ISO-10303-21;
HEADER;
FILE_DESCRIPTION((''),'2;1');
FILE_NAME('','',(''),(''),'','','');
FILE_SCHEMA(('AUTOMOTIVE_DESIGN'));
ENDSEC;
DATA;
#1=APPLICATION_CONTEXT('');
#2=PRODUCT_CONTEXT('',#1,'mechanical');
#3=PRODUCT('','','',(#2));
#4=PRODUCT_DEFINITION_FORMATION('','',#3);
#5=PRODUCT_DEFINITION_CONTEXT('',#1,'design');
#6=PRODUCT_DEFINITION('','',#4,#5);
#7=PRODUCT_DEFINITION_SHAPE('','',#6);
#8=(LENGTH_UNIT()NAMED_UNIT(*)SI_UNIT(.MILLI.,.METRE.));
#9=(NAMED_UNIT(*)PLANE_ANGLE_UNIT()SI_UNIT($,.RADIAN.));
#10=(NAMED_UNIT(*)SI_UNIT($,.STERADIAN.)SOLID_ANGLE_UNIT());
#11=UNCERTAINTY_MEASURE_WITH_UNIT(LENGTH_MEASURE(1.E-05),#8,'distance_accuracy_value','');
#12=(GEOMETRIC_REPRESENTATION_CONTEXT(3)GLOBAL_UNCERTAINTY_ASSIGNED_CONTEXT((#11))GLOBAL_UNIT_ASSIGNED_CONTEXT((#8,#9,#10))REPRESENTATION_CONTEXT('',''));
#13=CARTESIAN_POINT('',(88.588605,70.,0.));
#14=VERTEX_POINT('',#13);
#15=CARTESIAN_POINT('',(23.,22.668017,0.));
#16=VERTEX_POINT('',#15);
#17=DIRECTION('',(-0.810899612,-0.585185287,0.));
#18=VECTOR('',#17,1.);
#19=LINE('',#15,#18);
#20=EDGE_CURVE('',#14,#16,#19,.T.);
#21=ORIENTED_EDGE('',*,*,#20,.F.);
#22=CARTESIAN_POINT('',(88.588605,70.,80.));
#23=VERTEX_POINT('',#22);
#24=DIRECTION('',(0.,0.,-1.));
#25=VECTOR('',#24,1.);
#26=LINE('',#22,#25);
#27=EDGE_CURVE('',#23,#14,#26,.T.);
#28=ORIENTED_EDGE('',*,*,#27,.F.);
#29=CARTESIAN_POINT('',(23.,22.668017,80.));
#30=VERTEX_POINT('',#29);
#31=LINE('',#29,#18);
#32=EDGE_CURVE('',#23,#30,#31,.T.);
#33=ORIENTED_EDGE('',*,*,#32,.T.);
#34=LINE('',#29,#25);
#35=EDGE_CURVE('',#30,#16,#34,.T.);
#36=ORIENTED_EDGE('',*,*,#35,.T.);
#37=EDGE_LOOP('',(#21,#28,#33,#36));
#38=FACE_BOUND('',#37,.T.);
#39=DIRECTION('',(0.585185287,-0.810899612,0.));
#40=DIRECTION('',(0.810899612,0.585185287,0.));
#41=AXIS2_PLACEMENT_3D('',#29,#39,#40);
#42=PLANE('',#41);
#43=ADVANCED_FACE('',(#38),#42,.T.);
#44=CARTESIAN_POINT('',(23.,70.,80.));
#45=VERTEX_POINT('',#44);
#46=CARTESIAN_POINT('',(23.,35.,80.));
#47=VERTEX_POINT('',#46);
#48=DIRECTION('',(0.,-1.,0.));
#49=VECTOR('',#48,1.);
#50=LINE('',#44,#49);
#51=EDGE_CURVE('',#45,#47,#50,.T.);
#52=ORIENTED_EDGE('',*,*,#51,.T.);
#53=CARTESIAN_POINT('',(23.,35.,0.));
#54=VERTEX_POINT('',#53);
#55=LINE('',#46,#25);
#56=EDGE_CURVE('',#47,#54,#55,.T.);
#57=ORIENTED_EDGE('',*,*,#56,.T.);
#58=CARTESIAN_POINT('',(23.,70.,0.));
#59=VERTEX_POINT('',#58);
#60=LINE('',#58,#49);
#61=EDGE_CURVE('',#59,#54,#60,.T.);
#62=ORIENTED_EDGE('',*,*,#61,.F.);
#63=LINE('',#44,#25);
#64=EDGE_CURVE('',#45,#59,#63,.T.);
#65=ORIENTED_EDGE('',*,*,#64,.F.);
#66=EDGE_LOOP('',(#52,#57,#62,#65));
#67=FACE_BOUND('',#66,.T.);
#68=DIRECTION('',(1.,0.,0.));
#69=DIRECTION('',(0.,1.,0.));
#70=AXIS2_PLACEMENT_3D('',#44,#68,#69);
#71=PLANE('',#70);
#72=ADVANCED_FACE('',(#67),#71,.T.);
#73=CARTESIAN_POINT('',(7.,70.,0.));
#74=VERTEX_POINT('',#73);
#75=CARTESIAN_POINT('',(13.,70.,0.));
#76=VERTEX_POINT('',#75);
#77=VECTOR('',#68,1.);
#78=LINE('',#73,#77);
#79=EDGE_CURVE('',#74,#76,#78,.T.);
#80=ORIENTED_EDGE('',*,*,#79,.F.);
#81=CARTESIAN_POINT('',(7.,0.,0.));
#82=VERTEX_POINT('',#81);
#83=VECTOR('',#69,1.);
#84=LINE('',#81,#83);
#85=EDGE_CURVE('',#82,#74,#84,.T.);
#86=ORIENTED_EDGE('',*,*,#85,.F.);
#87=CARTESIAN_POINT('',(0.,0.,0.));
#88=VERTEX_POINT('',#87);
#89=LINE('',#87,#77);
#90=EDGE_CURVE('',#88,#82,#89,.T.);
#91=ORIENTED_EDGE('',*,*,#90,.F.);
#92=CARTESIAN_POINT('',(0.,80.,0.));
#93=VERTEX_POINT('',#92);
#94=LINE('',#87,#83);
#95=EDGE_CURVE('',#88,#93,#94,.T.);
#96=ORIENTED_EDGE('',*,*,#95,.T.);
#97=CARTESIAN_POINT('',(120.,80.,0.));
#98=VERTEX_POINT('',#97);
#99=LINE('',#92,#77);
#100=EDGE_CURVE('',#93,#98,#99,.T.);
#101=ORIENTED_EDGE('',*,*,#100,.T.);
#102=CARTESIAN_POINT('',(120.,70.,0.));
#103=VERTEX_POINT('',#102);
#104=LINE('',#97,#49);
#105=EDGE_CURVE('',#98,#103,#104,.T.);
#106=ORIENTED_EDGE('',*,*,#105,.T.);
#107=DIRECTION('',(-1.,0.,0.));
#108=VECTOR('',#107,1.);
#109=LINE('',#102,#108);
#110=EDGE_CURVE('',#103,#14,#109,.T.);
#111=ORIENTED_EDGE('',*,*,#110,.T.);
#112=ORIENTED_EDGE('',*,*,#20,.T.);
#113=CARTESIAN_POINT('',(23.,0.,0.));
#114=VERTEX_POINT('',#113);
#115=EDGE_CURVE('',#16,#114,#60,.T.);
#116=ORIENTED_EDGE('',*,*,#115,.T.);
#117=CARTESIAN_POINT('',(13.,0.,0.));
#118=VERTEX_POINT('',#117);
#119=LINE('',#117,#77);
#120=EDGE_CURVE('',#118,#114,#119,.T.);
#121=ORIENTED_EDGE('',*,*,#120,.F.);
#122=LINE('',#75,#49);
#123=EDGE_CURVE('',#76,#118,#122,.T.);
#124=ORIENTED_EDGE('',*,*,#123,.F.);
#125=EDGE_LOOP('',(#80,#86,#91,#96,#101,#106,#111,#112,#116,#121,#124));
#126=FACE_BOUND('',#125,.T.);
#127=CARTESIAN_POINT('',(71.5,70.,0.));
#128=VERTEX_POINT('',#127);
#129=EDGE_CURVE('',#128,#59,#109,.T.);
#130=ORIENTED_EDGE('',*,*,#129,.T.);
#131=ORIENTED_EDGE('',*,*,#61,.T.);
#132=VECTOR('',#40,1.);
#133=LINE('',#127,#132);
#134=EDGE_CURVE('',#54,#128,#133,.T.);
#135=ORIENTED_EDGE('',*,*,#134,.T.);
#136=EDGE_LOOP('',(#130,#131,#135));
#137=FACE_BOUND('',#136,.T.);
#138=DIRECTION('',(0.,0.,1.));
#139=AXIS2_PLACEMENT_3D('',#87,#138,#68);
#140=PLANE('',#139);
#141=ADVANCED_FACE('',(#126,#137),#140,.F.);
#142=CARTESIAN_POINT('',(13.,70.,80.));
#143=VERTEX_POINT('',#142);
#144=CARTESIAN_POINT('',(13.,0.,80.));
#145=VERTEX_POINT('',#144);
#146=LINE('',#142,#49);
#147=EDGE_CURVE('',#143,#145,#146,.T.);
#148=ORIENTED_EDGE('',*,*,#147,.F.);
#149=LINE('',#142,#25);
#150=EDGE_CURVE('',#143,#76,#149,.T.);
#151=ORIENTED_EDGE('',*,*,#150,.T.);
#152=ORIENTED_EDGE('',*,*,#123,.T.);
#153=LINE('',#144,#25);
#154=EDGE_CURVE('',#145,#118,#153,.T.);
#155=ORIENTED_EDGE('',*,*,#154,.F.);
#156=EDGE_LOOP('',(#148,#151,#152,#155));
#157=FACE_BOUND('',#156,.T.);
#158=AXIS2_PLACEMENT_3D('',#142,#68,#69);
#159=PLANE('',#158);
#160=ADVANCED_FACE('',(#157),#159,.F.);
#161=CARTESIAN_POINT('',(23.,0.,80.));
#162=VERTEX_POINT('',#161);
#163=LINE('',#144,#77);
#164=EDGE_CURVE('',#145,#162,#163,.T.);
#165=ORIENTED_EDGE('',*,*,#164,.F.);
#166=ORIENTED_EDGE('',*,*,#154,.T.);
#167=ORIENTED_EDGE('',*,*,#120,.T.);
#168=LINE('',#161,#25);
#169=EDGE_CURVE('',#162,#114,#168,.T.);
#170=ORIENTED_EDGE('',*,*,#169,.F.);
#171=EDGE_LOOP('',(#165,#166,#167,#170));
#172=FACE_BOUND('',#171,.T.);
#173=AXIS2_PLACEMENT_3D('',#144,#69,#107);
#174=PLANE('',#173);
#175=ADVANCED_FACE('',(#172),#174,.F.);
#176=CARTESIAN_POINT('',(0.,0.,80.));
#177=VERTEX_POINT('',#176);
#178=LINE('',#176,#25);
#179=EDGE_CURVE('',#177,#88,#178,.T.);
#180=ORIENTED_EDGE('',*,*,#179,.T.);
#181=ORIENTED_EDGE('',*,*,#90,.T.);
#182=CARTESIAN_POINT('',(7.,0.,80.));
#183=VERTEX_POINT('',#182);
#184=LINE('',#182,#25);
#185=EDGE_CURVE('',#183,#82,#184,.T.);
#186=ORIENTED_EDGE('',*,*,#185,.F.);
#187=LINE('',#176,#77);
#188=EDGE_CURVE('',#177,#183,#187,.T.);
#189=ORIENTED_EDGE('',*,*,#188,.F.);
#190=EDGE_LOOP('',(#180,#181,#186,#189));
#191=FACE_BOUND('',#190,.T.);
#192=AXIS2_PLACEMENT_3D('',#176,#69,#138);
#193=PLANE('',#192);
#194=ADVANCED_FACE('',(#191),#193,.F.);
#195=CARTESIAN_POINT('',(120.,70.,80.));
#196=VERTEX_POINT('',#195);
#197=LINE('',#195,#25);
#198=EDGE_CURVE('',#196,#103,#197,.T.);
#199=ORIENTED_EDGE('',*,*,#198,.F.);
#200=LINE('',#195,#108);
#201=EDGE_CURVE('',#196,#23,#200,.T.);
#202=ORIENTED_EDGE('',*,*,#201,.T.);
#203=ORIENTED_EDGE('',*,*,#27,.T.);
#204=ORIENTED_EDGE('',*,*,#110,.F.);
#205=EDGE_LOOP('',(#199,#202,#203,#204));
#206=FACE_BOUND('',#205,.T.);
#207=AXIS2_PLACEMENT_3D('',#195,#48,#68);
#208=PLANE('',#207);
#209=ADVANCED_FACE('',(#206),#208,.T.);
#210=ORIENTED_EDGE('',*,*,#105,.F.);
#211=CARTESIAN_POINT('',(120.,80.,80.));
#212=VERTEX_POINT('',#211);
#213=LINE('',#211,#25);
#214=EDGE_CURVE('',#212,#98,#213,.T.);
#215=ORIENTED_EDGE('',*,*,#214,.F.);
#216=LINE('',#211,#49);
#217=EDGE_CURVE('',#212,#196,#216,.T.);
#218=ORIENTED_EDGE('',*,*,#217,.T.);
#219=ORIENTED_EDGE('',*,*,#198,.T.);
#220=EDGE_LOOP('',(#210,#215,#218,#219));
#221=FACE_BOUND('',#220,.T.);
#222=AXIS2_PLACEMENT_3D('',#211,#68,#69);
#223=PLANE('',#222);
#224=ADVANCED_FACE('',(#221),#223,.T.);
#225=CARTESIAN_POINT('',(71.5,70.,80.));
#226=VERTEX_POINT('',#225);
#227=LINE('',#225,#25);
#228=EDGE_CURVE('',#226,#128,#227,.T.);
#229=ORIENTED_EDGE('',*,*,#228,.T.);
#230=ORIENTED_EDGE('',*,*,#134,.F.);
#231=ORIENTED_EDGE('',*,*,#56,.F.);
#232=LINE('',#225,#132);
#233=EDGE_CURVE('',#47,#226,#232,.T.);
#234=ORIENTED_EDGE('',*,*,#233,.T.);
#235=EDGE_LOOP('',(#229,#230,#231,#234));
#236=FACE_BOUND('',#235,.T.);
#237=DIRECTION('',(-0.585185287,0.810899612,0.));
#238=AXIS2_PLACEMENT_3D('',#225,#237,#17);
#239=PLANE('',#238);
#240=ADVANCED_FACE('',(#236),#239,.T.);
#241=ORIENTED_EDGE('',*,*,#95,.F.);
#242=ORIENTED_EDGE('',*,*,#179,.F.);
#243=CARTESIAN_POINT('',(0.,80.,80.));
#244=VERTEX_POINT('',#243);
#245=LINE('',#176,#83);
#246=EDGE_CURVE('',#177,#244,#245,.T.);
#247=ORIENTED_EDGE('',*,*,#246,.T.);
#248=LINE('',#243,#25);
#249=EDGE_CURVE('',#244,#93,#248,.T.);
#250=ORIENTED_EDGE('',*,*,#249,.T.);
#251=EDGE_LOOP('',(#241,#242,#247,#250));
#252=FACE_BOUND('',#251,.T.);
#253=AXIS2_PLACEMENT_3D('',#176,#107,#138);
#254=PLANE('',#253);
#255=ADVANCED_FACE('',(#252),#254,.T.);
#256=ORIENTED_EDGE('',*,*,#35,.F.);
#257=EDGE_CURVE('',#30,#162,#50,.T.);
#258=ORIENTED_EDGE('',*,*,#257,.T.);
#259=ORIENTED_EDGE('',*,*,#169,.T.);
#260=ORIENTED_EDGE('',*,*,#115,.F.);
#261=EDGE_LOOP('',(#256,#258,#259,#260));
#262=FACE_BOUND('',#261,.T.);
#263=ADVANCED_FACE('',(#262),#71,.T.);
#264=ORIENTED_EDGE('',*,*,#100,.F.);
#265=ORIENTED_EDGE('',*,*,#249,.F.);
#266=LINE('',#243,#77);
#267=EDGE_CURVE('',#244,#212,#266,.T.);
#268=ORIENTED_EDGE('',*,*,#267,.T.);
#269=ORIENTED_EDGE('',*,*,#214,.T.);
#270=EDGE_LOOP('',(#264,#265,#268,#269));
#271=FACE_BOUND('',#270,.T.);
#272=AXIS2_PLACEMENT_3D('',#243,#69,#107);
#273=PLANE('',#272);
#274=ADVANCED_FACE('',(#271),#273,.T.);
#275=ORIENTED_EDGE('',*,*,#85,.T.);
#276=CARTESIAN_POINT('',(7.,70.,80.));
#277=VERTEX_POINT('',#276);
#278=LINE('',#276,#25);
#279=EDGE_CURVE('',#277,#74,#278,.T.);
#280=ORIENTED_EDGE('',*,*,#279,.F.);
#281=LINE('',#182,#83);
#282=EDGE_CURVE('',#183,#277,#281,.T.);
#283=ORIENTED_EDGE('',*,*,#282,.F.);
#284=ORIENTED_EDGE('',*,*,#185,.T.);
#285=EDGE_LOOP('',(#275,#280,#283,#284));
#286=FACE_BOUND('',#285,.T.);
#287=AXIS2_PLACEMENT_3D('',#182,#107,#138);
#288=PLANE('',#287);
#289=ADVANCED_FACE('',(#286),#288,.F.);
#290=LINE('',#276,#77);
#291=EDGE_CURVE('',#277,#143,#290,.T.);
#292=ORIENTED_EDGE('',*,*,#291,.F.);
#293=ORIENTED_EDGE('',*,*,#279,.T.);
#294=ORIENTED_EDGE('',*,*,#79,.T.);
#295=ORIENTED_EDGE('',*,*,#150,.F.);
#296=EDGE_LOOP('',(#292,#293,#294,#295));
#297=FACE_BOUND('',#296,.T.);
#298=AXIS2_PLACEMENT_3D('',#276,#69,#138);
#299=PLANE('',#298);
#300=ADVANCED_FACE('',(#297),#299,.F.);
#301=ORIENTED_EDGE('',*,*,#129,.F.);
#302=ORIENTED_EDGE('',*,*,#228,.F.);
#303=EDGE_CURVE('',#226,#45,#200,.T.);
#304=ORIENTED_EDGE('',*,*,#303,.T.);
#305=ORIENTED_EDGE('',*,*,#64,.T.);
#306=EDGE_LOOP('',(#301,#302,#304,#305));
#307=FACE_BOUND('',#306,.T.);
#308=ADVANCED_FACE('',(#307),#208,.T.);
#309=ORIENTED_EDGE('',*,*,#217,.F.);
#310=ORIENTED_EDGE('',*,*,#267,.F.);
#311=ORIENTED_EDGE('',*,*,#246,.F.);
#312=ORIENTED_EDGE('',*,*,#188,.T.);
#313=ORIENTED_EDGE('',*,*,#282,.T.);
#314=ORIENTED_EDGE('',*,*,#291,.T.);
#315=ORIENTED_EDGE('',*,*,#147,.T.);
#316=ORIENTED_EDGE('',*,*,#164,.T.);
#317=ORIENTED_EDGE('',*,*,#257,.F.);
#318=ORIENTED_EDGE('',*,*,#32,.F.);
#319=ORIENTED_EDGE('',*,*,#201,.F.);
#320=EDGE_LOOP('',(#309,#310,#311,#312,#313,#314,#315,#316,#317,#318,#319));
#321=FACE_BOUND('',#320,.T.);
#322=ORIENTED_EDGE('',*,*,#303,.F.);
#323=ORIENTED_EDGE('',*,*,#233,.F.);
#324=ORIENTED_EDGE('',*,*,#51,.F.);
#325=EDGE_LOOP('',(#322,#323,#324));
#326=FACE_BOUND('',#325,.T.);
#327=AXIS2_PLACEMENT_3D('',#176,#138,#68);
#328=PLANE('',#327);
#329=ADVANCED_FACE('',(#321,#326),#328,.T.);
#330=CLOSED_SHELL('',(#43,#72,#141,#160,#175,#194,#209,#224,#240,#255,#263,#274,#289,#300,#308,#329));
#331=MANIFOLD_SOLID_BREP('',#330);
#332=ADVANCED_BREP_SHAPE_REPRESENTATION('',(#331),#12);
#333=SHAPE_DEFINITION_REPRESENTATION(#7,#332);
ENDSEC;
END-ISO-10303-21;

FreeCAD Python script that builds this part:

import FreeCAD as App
import Part
import Sketcher

V = App.Vector
Q = App.Units.Quantity


def add_polygon(sketch, points):
    """Adds a closed chain of lines whose ends are joined by coincident constraints."""
    first, n = sketch.GeometryCount, len(points)
    for a, b in zip(points, points[1:] + points[:1]):
        sketch.addGeometry(Part.LineSegment(App.Vector(*a, 0), App.Vector(*b, 0)), False)
    for i in range(n):
        sketch.addConstraint(Sketcher.Constraint("Coincident", first + i, 2, first + (i + 1) % n, 1))

doc = App.newDocument("Part")
body = doc.addObject("PartDesign::Body", "Body")

# Sketch on XY plane
sketch1 = body.newObject("Sketcher::SketchObject", "Sketch")
sketch1.AttachmentSupport = (doc.getObject("XY_Plane"), [""])
sketch1.MapMode = "FlatFace"
add_polygon(sketch1, [(0, 80), (0, 0), (7, 0), (7, 70), (13, 70), (13, 0), (23, 0), (23, 70), (120, 70), (120, 80)])  # lines 0-9
sketch1.addConstraint(Sketcher.Constraint("Vertical", 0))
sketch1.addConstraint(Sketcher.Constraint("Horizontal", 1))
sketch1.addConstraint(Sketcher.Constraint("Vertical", 2))
sketch1.addConstraint(Sketcher.Constraint("Horizontal", 3))
sketch1.addConstraint(Sketcher.Constraint("Vertical", 4))
sketch1.addConstraint(Sketcher.Constraint("Horizontal", 5))
sketch1.addConstraint(Sketcher.Constraint("Vertical", 6))
sketch1.addConstraint(Sketcher.Constraint("Horizontal", 7))
sketch1.addConstraint(Sketcher.Constraint("Vertical", 8))
sketch1.addConstraint(Sketcher.Constraint("Horizontal", 9))
sketch1.addConstraint(Sketcher.Constraint("Coincident", 0, 2, -1, 1))
sketch1.addConstraint(Sketcher.Constraint("PointOnObject", 4, 2, -1))
sketch1.addConstraint(Sketcher.Constraint("Horizontal", 3, 2, 6, 2))
sketch1.addConstraint(Sketcher.Constraint("Equal", 5, 8))
sketch1.addConstraint(Sketcher.Constraint("DistanceX", 1, 1, 1, 2, Q("7 mm")))
sketch1.addConstraint(Sketcher.Constraint("DistanceX", 3, 1, 3, 2, Q("6 mm")))
sketch1.addConstraint(Sketcher.Constraint("DistanceX", 5, 1, 5, 2, Q("10 mm")))
sketch1.addConstraint(Sketcher.Constraint("DistanceX", 7, 1, 7, 2, Q("97 mm")))
sketch1.addConstraint(Sketcher.Constraint("DistanceY", 0, 2, 0, 1, Q("80 mm")))
pad1 = body.newObject("PartDesign::Pad", "Pad")
pad1.Profile = sketch1
pad1.Length = 80

# Sketch on XY plane
sketch2 = body.newObject("Sketcher::SketchObject", "Sketch001")
sketch2.AttachmentSupport = (doc.getObject("XY_Plane"), [""])
sketch2.MapMode = "FlatFace"
add_polygon(sketch2, [(23, 35), (72, 70), (89, 70), (23, 23)])  # lines 0-3
sketch2.addConstraint(Sketcher.Constraint("Horizontal", 1))
sketch2.addConstraint(Sketcher.Constraint("Vertical", 3))
sketch2.addConstraint(Sketcher.Constraint("Parallel", 0, 2))
sketch2.addConstraint(Sketcher.Constraint("DistanceY", -1, 1, 0, 2, Q("70 mm")))
sketch2.addConstraint(Sketcher.Constraint("DistanceX", -1, 1, 2, 2, Q("23 mm")))
sketch2.addConstraint(Sketcher.Constraint("DistanceY", -1, 1, 3, 2, Q("35 mm")))
sketch2.addConstraint(Sketcher.Constraint("DistanceX", -1, 1, 0, 2, Q("71.5 mm")))
sketch2.addConstraint(Sketcher.Constraint("DistanceX", 1, 1, 1, 2, Q("17.088605 mm")))
pad2 = body.newObject("PartDesign::Pad", "Pad001")
pad2.Profile = sketch2
pad2.Length = 80

doc.recompute()
